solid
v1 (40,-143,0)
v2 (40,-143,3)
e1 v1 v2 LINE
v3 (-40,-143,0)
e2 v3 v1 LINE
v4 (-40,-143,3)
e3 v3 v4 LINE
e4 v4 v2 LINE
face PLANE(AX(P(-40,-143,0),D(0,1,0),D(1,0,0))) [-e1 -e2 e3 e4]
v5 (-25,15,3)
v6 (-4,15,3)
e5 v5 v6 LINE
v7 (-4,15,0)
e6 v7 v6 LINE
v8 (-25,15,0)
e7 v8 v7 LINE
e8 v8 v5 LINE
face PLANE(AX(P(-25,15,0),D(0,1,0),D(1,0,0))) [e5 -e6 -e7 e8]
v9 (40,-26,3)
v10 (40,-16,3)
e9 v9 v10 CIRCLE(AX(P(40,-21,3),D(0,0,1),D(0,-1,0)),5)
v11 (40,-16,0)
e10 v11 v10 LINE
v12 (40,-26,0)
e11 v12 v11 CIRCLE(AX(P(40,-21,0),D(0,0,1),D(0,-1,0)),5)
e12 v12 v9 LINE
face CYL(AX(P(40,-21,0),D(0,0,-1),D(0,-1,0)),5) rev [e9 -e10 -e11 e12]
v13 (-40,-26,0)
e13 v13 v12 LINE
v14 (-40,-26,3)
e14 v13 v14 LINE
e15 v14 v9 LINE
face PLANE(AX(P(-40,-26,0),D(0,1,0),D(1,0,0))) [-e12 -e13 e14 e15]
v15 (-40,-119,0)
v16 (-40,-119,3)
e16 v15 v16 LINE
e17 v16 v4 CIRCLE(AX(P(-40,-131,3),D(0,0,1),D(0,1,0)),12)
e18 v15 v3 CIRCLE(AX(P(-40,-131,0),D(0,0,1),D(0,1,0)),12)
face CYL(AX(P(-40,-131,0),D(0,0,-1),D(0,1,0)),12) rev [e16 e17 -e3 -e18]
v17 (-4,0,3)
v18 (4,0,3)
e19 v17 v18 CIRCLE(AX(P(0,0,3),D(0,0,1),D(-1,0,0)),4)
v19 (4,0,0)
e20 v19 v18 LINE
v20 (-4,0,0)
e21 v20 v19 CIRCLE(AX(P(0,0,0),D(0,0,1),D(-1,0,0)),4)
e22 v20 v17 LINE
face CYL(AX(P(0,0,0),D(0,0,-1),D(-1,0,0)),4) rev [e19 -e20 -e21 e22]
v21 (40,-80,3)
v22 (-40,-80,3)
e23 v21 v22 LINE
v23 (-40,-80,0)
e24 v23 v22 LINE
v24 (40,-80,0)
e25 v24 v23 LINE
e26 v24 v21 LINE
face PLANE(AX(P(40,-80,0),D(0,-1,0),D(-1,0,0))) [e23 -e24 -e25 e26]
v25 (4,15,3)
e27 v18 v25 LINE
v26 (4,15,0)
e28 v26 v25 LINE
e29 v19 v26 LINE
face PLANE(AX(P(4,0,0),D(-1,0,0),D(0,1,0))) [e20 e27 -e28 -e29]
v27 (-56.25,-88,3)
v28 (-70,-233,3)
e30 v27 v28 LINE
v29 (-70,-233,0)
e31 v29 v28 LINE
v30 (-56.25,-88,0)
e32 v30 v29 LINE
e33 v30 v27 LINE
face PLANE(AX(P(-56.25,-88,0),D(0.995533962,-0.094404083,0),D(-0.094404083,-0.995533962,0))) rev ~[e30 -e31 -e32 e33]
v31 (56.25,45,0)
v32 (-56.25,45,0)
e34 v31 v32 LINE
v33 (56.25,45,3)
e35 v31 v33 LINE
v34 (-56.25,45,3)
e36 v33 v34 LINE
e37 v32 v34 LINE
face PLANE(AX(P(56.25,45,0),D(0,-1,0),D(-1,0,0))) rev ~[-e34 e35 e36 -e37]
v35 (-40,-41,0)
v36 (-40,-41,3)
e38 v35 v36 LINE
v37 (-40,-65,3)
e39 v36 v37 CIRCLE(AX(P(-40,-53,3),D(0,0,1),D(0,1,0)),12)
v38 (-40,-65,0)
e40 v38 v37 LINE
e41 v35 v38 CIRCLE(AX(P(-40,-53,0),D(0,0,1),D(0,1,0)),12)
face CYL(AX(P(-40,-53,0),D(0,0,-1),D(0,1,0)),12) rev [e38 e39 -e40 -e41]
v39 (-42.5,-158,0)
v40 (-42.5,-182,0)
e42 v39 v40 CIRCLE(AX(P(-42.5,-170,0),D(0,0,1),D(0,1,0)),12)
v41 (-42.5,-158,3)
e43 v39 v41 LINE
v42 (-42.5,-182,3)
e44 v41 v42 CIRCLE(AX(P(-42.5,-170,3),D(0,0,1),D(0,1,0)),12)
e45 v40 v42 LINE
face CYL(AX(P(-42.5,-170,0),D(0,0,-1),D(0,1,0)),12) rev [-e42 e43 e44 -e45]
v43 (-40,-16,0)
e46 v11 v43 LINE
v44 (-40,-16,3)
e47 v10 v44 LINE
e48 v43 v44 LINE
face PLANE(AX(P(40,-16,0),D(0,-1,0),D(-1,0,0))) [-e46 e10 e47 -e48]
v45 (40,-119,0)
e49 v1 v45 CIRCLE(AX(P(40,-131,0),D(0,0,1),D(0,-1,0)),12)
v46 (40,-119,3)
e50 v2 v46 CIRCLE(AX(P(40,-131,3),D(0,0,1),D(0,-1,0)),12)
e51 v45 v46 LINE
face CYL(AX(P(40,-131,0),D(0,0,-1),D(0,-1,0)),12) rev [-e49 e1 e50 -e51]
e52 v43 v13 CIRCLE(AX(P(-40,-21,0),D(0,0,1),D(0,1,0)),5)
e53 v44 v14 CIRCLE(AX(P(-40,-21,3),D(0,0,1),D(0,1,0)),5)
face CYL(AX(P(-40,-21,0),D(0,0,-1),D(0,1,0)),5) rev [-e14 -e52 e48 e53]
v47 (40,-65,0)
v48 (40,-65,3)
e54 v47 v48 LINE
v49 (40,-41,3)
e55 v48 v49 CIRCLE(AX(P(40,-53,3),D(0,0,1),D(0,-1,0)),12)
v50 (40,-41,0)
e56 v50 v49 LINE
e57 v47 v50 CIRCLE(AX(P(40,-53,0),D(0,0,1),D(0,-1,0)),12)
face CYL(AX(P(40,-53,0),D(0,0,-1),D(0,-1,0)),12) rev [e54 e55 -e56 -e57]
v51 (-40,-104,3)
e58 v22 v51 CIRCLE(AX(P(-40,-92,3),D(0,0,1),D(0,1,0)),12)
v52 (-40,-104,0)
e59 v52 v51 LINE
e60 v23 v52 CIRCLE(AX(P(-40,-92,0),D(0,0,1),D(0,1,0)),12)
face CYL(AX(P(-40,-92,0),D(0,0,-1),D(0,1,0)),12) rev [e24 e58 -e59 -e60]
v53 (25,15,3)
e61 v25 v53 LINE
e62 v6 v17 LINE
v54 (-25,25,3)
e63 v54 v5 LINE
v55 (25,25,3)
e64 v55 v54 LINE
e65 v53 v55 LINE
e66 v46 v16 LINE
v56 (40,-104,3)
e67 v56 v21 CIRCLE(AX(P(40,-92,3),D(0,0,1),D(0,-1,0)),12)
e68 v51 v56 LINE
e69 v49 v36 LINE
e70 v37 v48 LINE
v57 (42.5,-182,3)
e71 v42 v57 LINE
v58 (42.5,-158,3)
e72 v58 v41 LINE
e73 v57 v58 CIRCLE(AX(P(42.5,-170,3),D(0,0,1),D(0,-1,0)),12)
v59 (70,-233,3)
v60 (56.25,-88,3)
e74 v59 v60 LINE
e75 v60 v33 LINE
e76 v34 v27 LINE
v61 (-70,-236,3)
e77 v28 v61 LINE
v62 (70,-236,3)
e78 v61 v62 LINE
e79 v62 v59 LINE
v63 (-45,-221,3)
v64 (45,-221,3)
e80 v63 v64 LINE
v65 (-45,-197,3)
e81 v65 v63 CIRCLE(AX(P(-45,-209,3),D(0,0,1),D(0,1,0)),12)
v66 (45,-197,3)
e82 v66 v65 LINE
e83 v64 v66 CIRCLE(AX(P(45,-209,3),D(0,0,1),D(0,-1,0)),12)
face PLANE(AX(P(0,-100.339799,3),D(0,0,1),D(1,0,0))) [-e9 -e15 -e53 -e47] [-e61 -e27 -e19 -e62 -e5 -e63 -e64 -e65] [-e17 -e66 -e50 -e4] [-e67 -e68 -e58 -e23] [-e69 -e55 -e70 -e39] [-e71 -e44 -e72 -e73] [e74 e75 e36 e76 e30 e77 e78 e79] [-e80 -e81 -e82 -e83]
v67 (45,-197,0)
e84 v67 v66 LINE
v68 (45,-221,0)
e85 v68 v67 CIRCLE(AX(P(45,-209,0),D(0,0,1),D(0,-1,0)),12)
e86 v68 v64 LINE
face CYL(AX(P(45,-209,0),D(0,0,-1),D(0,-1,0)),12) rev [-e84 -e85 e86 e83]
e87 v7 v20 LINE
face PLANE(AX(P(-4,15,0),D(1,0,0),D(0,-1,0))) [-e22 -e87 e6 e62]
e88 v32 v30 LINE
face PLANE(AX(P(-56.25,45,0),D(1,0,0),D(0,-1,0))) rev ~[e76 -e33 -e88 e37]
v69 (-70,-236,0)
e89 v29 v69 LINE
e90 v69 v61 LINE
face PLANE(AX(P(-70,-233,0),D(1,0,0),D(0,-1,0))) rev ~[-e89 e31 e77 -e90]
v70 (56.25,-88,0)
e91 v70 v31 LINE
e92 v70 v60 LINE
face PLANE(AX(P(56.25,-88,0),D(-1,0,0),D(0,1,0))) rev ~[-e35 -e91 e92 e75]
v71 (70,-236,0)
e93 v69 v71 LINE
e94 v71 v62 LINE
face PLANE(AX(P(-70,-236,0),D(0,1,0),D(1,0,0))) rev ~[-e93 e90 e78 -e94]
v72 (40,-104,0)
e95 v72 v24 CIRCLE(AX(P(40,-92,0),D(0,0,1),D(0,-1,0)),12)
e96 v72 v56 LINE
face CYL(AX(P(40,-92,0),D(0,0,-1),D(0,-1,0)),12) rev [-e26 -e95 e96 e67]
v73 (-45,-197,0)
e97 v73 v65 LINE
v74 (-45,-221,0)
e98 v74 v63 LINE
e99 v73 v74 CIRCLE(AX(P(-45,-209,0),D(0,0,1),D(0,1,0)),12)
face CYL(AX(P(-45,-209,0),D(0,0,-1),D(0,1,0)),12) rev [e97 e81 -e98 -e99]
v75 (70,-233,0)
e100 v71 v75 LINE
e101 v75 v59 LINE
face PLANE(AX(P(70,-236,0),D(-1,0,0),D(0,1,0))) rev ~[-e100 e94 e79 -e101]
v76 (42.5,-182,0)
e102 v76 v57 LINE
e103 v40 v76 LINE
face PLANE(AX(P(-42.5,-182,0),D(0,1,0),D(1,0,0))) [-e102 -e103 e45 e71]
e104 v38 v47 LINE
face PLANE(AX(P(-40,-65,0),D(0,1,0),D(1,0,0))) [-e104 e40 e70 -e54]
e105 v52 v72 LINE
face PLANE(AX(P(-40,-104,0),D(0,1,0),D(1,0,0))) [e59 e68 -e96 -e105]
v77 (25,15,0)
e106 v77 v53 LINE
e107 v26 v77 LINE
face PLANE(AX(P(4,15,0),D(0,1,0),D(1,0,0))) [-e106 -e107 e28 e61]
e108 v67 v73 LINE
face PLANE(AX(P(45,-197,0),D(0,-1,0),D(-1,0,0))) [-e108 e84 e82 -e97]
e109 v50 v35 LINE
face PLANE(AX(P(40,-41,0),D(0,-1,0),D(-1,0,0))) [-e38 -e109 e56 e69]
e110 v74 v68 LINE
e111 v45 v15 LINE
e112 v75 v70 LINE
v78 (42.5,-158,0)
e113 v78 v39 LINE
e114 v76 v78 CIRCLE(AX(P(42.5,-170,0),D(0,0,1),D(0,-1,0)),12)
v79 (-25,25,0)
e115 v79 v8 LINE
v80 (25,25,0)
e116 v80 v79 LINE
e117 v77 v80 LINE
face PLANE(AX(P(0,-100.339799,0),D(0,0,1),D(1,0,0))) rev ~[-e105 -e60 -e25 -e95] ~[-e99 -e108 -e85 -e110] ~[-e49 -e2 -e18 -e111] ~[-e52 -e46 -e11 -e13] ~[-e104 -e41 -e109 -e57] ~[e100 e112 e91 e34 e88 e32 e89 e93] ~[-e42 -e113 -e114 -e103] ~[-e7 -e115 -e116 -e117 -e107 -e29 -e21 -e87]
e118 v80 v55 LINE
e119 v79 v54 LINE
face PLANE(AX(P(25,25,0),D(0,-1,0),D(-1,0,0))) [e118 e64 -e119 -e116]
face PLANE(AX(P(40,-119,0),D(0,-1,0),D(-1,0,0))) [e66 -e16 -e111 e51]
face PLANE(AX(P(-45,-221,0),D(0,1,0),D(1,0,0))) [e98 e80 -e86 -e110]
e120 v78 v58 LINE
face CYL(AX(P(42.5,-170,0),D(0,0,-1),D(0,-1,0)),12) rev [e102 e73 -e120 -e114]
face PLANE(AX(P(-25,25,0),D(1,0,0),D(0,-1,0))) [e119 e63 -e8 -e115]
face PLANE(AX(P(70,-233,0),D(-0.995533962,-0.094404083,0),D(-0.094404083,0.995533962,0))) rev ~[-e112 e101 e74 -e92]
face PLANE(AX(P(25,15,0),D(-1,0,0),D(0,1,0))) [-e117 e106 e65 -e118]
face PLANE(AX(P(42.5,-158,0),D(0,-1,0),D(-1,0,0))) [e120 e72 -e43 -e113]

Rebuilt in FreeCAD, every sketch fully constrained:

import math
import FreeCAD as App
import Part
import Sketcher
from FreeCAD import Vector
Q = App.Units.Quantity

doc = App.newDocument("Part")
params = doc.addObject("Spreadsheet::Sheet", "Params")
for row, (alias, value) in enumerate([
    ("sketch1_radius", "12 mm"),
    ("sketch1_radius2", "5 mm"),
    ("sketch1_radius3", "4 mm"),
    ("sketch1_width", "140 mm"),
    ("sketch1_width2", "90 mm"),
    ("pad1_length", "3 mm"),
], start=1):
    params.set(f"A{row}", alias)
    params.set(f"B{row}", "=" + value)
    params.setAlias(f"B{row}", alias)

body = doc.addObject("PartDesign::Body", "Body")

sketch1 = body.newObject("Sketcher::SketchObject", "Sketch")
sketch1.AttachmentSupport = (doc.getObject("XY_Plane"), [""])
sketch1.MapMode = "FlatFace"
sketch1.addGeometry(Part.LineSegment(Vector(-70, -236, 0), Vector(70, -236, 0)), False)
sketch1.addGeometry(Part.LineSegment(Vector(70, -236, 0), Vector(70, -233, 0)), False)
sketch1.addGeometry(Part.LineSegment(Vector(70, -233, 0), Vector(56.2, -88, 0)), False)
sketch1.addGeometry(Part.LineSegment(Vector(56.2, -88, 0), Vector(56.2, 45, 0)), False)
sketch1.addGeometry(Part.LineSegment(Vector(56.2, 45, 0), Vector(-56.2, 45, 0)), False)
sketch1.addGeometry(Part.LineSegment(Vector(-56.2, 45, 0), Vector(-56.2, -88, 0)), False)
sketch1.addGeometry(Part.LineSegment(Vector(-56.2, -88, 0), Vector(-70, -233, 0)), False)
sketch1.addGeometry(Part.LineSegment(Vector(-70, -233, 0), Vector(-70, -236, 0)), False)
sketch1.addGeometry(Part.LineSegment(Vector(-45, -197, 0), Vector(45, -197, 0)), False)
sketch1.addGeometry(Part.ArcOfCircle(Part.Circle(Vector(45, -209, 0), Vector(0, 0, 1), 12), math.radians(-90), math.radians(90)), False)
sketch1.addGeometry(Part.LineSegment(Vector(45, -221, 0), Vector(-45, -221, 0)), False)
sketch1.addGeometry(Part.ArcOfCircle(Part.Circle(Vector(-45, -209, 0), Vector(0, 0, 1), 12), math.radians(90), math.radians(270)), False)
sketch1.addGeometry(Part.LineSegment(Vector(-42.5, -158, 0), Vector(42.5, -158, 0)), False)
sketch1.addGeometry(Part.ArcOfCircle(Part.Circle(Vector(42.5, -170, 0), Vector(0, 0, 1), 12), math.radians(-90), math.radians(90)), False)
sketch1.addGeometry(Part.LineSegment(Vector(42.5, -182, 0), Vector(-42.5, -182, 0)), False)
sketch1.addGeometry(Part.ArcOfCircle(Part.Circle(Vector(-42.5, -170, 0), Vector(0, 0, 1), 12), math.radians(90), math.radians(270)), False)
sketch1.addGeometry(Part.LineSegment(Vector(-40, -119, 0), Vector(40, -119, 0)), False)
sketch1.addGeometry(Part.ArcOfCircle(Part.Circle(Vector(40, -131, 0), Vector(0, 0, 1), 12), math.radians(-90), math.radians(90)), False)
sketch1.addGeometry(Part.LineSegment(Vector(40, -143, 0), Vector(-40, -143, 0)), False)
sketch1.addGeometry(Part.ArcOfCircle(Part.Circle(Vector(-40, -131, 0), Vector(0, 0, 1), 12), math.radians(90), math.radians(270)), False)
sketch1.addGeometry(Part.LineSegment(Vector(-40, -80, 0), Vector(40, -80, 0)), False)
sketch1.addGeometry(Part.ArcOfCircle(Part.Circle(Vector(40, -92, 0), Vector(0, 0, 1), 12), math.radians(-90), math.radians(90)), False)
sketch1.addGeometry(Part.LineSegment(Vector(40, -104, 0), Vector(-40, -104, 0)), False)
sketch1.addGeometry(Part.ArcOfCircle(Part.Circle(Vector(-40, -92, 0), Vector(0, 0, 1), 12), math.radians(90), math.radians(270)), False)
sketch1.addGeometry(Part.LineSegment(Vector(-40, -41, 0), Vector(40, -41, 0)), False)
sketch1.addGeometry(Part.ArcOfCircle(Part.Circle(Vector(40, -53, 0), Vector(0, 0, 1), 12), math.radians(-90), math.radians(90)), False)
sketch1.addGeometry(Part.LineSegment(Vector(40, -65, 0), Vector(-40, -65, 0)), False)
sketch1.addGeometry(Part.ArcOfCircle(Part.Circle(Vector(-40, -53, 0), Vector(0, 0, 1), 12), math.radians(90), math.radians(270)), False)
sketch1.addGeometry(Part.LineSegment(Vector(-40, -16, 0), Vector(40, -16, 0)), False)
sketch1.addGeometry(Part.ArcOfCircle(Part.Circle(Vector(40, -21, 0), Vector(0, 0, 1), 5), math.radians(-90), math.radians(90)), False)
sketch1.addGeometry(Part.LineSegment(Vector(40, -26, 0), Vector(-40, -26, 0)), False)
sketch1.addGeometry(Part.ArcOfCircle(Part.Circle(Vector(-40, -21, 0), Vector(0, 0, 1), 5), math.radians(90), math.radians(270)), False)
sketch1.addGeometry(Part.LineSegment(Vector(25, 25, 0), Vector(25, 15, 0)), False)
sketch1.addGeometry(Part.LineSegment(Vector(25, 15, 0), Vector(4, 15, 0)), False)
sketch1.addGeometry(Part.LineSegment(Vector(4, 15, 0), Vector(4, 0, 0)), False)
sketch1.addGeometry(Part.ArcOfCircle(Part.Circle(Vector(0, 0, 0), Vector(0, 0, 1), 4), math.radians(180), math.radians(360)), False)
sketch1.addGeometry(Part.LineSegment(Vector(-4, 0, 0), Vector(-4, 15, 0)), False)
sketch1.addGeometry(Part.LineSegment(Vector(-4, 15, 0), Vector(-25, 15, 0)), False)
sketch1.addGeometry(Part.LineSegment(Vector(-25, 15, 0), Vector(-25, 25, 0)), False)
sketch1.addGeometry(Part.LineSegment(Vector(-25, 25, 0), Vector(25, 25, 0)), False)
sketch1.addConstraint(Sketcher.Constraint("Coincident", 0, 2, 1, 1))
sketch1.addConstraint(Sketcher.Constraint("Coincident", 1, 2, 2, 1))
sketch1.addConstraint(Sketcher.Constraint("Coincident", 2, 2, 3, 1))
sketch1.addConstraint(Sketcher.Constraint("Coincident", 3, 2, 4, 1))
sketch1.addConstraint(Sketcher.Constraint("Coincident", 4, 2, 5, 1))
sketch1.addConstraint(Sketcher.Constraint("Coincident", 5, 2, 6, 1))
sketch1.addConstraint(Sketcher.Constraint("Coincident", 6, 2, 7, 1))
sketch1.addConstraint(Sketcher.Constraint("Coincident", 7, 2, 0, 1))
sketch1.addConstraint(Sketcher.Constraint("Tangent", 8, 2, 9, 2))
sketch1.addConstraint(Sketcher.Constraint("Tangent", 9, 1, 10, 1))
sketch1.addConstraint(Sketcher.Constraint("Tangent", 10, 2, 11, 2))
sketch1.addConstraint(Sketcher.Constraint("Tangent", 11, 1, 8, 1))
sketch1.addConstraint(Sketcher.Constraint("Tangent", 12, 2, 13, 2))
sketch1.addConstraint(Sketcher.Constraint("Tangent", 13, 1, 14, 1))
sketch1.addConstraint(Sketcher.Constraint("Tangent", 14, 2, 15, 2))
sketch1.addConstraint(Sketcher.Constraint("Tangent", 15, 1, 12, 1))
sketch1.addConstraint(Sketcher.Constraint("Tangent", 16, 2, 17, 2))
sketch1.addConstraint(Sketcher.Constraint("Tangent", 17, 1, 18, 1))
sketch1.addConstraint(Sketcher.Constraint("Tangent", 18, 2, 19, 2))
sketch1.addConstraint(Sketcher.Constraint("Tangent", 19, 1, 16, 1))
sketch1.addConstraint(Sketcher.Constraint("Tangent", 20, 2, 21, 2))
sketch1.addConstraint(Sketcher.Constraint("Tangent", 21, 1, 22, 1))
sketch1.addConstraint(Sketcher.Constraint("Tangent", 22, 2, 23, 2))
sketch1.addConstraint(Sketcher.Constraint("Tangent", 23, 1, 20, 1))
sketch1.addConstraint(Sketcher.Constraint("Tangent", 24, 2, 25, 2))
sketch1.addConstraint(Sketcher.Constraint("Tangent", 25, 1, 26, 1))
sketch1.addConstraint(Sketcher.Constraint("Tangent", 26, 2, 27, 2))
sketch1.addConstraint(Sketcher.Constraint("Tangent", 27, 1, 24, 1))
sketch1.addConstraint(Sketcher.Constraint("Tangent", 28, 2, 29, 2))
sketch1.addConstraint(Sketcher.Constraint("Tangent", 29, 1, 30, 1))
sketch1.addConstraint(Sketcher.Constraint("Tangent", 30, 2, 31, 2))
sketch1.addConstraint(Sketcher.Constraint("Tangent", 31, 1, 28, 1))
sketch1.addConstraint(Sketcher.Constraint("Coincident", 32, 2, 33, 1))
sketch1.addConstraint(Sketcher.Constraint("Coincident", 33, 2, 34, 1))
sketch1.addConstraint(Sketcher.Constraint("Tangent", 34, 2, 35, 2))
sketch1.addConstraint(Sketcher.Constraint("Tangent", 35, 1, 36, 1))
sketch1.addConstraint(Sketcher.Constraint("Coincident", 36, 2, 37, 1))
sketch1.addConstraint(Sketcher.Constraint("Coincident", 37, 2, 38, 1))
sketch1.addConstraint(Sketcher.Constraint("Coincident", 38, 2, 39, 1))
sketch1.addConstraint(Sketcher.Constraint("Coincident", 39, 2, 32, 1))
sketch1.addConstraint(Sketcher.Constraint("Horizontal", 0))
sketch1.addConstraint(Sketcher.Constraint("Vertical", 1))
sketch1.addConstraint(Sketcher.Constraint("Vertical", 3))
sketch1.addConstraint(Sketcher.Constraint("Horizontal", 4))
sketch1.addConstraint(Sketcher.Constraint("Vertical", 5))
sketch1.addConstraint(Sketcher.Constraint("Vertical", 7))
sketch1.addConstraint(Sketcher.Constraint("Horizontal", 8))
sketch1.addConstraint(Sketcher.Constraint("Horizontal", 10))
sketch1.addConstraint(Sketcher.Constraint("Horizontal", 12))
sketch1.addConstraint(Sketcher.Constraint("Horizontal", 14))
sketch1.addConstraint(Sketcher.Constraint("Horizontal", 16))
sketch1.addConstraint(Sketcher.Constraint("Horizontal", 18))
sketch1.addConstraint(Sketcher.Constraint("Horizontal", 20))
sketch1.addConstraint(Sketcher.Constraint("Horizontal", 22))
sketch1.addConstraint(Sketcher.Constraint("Horizontal", 24))
sketch1.addConstraint(Sketcher.Constraint("Horizontal", 26))
sketch1.addConstraint(Sketcher.Constraint("Horizontal", 28))
sketch1.addConstraint(Sketcher.Constraint("Horizontal", 30))
sketch1.addConstraint(Sketcher.Constraint("Vertical", 32))
sketch1.addConstraint(Sketcher.Constraint("Horizontal", 33))
sketch1.addConstraint(Sketcher.Constraint("Vertical", 34))
sketch1.addConstraint(Sketcher.Constraint("Vertical", 36))
sketch1.addConstraint(Sketcher.Constraint("Horizontal", 37))
sketch1.addConstraint(Sketcher.Constraint("Vertical", 38))
sketch1.addConstraint(Sketcher.Constraint("Horizontal", 39))
sketch1.addConstraint(Sketcher.Constraint("Coincident", 35, 3, -1, 1))
sketch1.addConstraint(Sketcher.Constraint("Equal", 11, 13))
sketch1.addConstraint(Sketcher.Constraint("Equal", 15, 17))
sketch1.addConstraint(Sketcher.Constraint("Equal", 19, 21))
sketch1.addConstraint(Sketcher.Constraint("Equal", 23, 25))
sketch1.addConstraint(Sketcher.Constraint("Symmetric", 2, 2, 5, 2, -2))
sketch1.addConstraint(Sketcher.Constraint("Symmetric", 1, 2, 6, 2, -2))
sketch1.addConstraint(Sketcher.Constraint("Symmetric", 32, 2, 37, 2, -2))
sketch1.addConstraint(Sketcher.Constraint("Vertical", 17, 3, 21, 3))
sketch1.addConstraint(Sketcher.Constraint("Vertical", 19, 3, 23, 3))
sketch1.addConstraint(Sketcher.Constraint("Vertical", 21, 3, 25, 3))
sketch1.addConstraint(Sketcher.Constraint("Vertical", 23, 3, 27, 3))
sketch1.addConstraint(Sketcher.Constraint("Vertical", 25, 3, 29, 3))
sketch1.addConstraint(Sketcher.Constraint("Vertical", 27, 3, 31, 3))
sketch1.addConstraint(Sketcher.Constraint("Radius", 9, Q("12 mm")))
sketch1.addConstraint(Sketcher.Constraint("Radius", 29, Q("5 mm")))
sketch1.addConstraint(Sketcher.Constraint("Radius", 35, Q("4 mm")))
sketch1.addConstraint(Sketcher.Constraint("DistanceX", 0, 1, 0, 2, Q("140 mm")))
sketch1.addConstraint(Sketcher.Constraint("DistanceX", 8, 1, 8, 2, Q("90 mm")))
sketch1.addConstraint(Sketcher.Constraint("DistanceX", 12, 1, 12, 2, Q("85 mm")))
sketch1.addConstraint(Sketcher.Constraint("DistanceX", 16, 1, 16, 2, Q("80 mm")))
sketch1.addConstraint(Sketcher.Constraint("DistanceX", 33, 2, 33, 1, Q("21 mm")))
sketch1.addConstraint(Sketcher.Constraint("DistanceY", 1, 1, 1, 2, Q("3 mm")))
sketch1.addConstraint(Sketcher.Constraint("DistanceY", 3, 1, 3, 2, Q("133 mm")))
sketch1.addConstraint(Sketcher.Constraint("DistanceY", 32, 2, 32, 1, Q("10 mm")))
sketch1.addConstraint(Sketcher.Constraint("DistanceY", 34, 2, 34, 1, Q("15 mm")))
sketch1.addConstraint(Sketcher.Constraint("DistanceX", 4, 2, 4, 1, Q("112.5 mm")))
sketch1.addConstraint(Sketcher.Constraint("DistanceX", -1, 1, 9, 3, Q("45 mm")))
sketch1.addConstraint(Sketcher.Constraint("DistanceY", 9, 3, -1, 1, Q("209 mm")))
sketch1.addConstraint(Sketcher.Constraint("DistanceY", 13, 3, -1, 1, Q("170 mm")))
sketch1.addConstraint(Sketcher.Constraint("DistanceX", -1, 1, 17, 3, Q("40 mm")))
sketch1.addConstraint(Sketcher.Constraint("DistanceY", 17, 3, -1, 1, Q("131 mm")))
sketch1.addConstraint(Sketcher.Constraint("DistanceY", 21, 3, -1, 1, Q("92 mm")))
sketch1.addConstraint(Sketcher.Constraint("DistanceY", 25, 3, -1, 1, Q("53 mm")))
sketch1.addConstraint(Sketcher.Constraint("DistanceY", 29, 3, -1, 1, Q("21 mm")))
sketch1.addConstraint(Sketcher.Constraint("DistanceY", 0, 2, -1, 1, Q("236 mm")))
sketch1.addConstraint(Sketcher.Constraint("DistanceY", 2, 2, -1, 1, Q("88 mm")))
sketch1.addConstraint(Sketcher.Constraint("DistanceX", -1, 1, 13, 3, Q("42.5 mm")))
sketch1.setExpression("Constraints[79]", "Params.sketch1_radius")
sketch1.setExpression("Constraints[80]", "Params.sketch1_radius2")
sketch1.setExpression("Constraints[81]", "Params.sketch1_radius3")
sketch1.setExpression("Constraints[82]", "Params.sketch1_width")
sketch1.setExpression("Constraints[83]", "Params.sketch1_width2")
pad1 = body.newObject("PartDesign::Pad", "Pad")
pad1.Profile = sketch1
pad1.setExpression("Length", "Params.pad1_length")

doc.recompute()
